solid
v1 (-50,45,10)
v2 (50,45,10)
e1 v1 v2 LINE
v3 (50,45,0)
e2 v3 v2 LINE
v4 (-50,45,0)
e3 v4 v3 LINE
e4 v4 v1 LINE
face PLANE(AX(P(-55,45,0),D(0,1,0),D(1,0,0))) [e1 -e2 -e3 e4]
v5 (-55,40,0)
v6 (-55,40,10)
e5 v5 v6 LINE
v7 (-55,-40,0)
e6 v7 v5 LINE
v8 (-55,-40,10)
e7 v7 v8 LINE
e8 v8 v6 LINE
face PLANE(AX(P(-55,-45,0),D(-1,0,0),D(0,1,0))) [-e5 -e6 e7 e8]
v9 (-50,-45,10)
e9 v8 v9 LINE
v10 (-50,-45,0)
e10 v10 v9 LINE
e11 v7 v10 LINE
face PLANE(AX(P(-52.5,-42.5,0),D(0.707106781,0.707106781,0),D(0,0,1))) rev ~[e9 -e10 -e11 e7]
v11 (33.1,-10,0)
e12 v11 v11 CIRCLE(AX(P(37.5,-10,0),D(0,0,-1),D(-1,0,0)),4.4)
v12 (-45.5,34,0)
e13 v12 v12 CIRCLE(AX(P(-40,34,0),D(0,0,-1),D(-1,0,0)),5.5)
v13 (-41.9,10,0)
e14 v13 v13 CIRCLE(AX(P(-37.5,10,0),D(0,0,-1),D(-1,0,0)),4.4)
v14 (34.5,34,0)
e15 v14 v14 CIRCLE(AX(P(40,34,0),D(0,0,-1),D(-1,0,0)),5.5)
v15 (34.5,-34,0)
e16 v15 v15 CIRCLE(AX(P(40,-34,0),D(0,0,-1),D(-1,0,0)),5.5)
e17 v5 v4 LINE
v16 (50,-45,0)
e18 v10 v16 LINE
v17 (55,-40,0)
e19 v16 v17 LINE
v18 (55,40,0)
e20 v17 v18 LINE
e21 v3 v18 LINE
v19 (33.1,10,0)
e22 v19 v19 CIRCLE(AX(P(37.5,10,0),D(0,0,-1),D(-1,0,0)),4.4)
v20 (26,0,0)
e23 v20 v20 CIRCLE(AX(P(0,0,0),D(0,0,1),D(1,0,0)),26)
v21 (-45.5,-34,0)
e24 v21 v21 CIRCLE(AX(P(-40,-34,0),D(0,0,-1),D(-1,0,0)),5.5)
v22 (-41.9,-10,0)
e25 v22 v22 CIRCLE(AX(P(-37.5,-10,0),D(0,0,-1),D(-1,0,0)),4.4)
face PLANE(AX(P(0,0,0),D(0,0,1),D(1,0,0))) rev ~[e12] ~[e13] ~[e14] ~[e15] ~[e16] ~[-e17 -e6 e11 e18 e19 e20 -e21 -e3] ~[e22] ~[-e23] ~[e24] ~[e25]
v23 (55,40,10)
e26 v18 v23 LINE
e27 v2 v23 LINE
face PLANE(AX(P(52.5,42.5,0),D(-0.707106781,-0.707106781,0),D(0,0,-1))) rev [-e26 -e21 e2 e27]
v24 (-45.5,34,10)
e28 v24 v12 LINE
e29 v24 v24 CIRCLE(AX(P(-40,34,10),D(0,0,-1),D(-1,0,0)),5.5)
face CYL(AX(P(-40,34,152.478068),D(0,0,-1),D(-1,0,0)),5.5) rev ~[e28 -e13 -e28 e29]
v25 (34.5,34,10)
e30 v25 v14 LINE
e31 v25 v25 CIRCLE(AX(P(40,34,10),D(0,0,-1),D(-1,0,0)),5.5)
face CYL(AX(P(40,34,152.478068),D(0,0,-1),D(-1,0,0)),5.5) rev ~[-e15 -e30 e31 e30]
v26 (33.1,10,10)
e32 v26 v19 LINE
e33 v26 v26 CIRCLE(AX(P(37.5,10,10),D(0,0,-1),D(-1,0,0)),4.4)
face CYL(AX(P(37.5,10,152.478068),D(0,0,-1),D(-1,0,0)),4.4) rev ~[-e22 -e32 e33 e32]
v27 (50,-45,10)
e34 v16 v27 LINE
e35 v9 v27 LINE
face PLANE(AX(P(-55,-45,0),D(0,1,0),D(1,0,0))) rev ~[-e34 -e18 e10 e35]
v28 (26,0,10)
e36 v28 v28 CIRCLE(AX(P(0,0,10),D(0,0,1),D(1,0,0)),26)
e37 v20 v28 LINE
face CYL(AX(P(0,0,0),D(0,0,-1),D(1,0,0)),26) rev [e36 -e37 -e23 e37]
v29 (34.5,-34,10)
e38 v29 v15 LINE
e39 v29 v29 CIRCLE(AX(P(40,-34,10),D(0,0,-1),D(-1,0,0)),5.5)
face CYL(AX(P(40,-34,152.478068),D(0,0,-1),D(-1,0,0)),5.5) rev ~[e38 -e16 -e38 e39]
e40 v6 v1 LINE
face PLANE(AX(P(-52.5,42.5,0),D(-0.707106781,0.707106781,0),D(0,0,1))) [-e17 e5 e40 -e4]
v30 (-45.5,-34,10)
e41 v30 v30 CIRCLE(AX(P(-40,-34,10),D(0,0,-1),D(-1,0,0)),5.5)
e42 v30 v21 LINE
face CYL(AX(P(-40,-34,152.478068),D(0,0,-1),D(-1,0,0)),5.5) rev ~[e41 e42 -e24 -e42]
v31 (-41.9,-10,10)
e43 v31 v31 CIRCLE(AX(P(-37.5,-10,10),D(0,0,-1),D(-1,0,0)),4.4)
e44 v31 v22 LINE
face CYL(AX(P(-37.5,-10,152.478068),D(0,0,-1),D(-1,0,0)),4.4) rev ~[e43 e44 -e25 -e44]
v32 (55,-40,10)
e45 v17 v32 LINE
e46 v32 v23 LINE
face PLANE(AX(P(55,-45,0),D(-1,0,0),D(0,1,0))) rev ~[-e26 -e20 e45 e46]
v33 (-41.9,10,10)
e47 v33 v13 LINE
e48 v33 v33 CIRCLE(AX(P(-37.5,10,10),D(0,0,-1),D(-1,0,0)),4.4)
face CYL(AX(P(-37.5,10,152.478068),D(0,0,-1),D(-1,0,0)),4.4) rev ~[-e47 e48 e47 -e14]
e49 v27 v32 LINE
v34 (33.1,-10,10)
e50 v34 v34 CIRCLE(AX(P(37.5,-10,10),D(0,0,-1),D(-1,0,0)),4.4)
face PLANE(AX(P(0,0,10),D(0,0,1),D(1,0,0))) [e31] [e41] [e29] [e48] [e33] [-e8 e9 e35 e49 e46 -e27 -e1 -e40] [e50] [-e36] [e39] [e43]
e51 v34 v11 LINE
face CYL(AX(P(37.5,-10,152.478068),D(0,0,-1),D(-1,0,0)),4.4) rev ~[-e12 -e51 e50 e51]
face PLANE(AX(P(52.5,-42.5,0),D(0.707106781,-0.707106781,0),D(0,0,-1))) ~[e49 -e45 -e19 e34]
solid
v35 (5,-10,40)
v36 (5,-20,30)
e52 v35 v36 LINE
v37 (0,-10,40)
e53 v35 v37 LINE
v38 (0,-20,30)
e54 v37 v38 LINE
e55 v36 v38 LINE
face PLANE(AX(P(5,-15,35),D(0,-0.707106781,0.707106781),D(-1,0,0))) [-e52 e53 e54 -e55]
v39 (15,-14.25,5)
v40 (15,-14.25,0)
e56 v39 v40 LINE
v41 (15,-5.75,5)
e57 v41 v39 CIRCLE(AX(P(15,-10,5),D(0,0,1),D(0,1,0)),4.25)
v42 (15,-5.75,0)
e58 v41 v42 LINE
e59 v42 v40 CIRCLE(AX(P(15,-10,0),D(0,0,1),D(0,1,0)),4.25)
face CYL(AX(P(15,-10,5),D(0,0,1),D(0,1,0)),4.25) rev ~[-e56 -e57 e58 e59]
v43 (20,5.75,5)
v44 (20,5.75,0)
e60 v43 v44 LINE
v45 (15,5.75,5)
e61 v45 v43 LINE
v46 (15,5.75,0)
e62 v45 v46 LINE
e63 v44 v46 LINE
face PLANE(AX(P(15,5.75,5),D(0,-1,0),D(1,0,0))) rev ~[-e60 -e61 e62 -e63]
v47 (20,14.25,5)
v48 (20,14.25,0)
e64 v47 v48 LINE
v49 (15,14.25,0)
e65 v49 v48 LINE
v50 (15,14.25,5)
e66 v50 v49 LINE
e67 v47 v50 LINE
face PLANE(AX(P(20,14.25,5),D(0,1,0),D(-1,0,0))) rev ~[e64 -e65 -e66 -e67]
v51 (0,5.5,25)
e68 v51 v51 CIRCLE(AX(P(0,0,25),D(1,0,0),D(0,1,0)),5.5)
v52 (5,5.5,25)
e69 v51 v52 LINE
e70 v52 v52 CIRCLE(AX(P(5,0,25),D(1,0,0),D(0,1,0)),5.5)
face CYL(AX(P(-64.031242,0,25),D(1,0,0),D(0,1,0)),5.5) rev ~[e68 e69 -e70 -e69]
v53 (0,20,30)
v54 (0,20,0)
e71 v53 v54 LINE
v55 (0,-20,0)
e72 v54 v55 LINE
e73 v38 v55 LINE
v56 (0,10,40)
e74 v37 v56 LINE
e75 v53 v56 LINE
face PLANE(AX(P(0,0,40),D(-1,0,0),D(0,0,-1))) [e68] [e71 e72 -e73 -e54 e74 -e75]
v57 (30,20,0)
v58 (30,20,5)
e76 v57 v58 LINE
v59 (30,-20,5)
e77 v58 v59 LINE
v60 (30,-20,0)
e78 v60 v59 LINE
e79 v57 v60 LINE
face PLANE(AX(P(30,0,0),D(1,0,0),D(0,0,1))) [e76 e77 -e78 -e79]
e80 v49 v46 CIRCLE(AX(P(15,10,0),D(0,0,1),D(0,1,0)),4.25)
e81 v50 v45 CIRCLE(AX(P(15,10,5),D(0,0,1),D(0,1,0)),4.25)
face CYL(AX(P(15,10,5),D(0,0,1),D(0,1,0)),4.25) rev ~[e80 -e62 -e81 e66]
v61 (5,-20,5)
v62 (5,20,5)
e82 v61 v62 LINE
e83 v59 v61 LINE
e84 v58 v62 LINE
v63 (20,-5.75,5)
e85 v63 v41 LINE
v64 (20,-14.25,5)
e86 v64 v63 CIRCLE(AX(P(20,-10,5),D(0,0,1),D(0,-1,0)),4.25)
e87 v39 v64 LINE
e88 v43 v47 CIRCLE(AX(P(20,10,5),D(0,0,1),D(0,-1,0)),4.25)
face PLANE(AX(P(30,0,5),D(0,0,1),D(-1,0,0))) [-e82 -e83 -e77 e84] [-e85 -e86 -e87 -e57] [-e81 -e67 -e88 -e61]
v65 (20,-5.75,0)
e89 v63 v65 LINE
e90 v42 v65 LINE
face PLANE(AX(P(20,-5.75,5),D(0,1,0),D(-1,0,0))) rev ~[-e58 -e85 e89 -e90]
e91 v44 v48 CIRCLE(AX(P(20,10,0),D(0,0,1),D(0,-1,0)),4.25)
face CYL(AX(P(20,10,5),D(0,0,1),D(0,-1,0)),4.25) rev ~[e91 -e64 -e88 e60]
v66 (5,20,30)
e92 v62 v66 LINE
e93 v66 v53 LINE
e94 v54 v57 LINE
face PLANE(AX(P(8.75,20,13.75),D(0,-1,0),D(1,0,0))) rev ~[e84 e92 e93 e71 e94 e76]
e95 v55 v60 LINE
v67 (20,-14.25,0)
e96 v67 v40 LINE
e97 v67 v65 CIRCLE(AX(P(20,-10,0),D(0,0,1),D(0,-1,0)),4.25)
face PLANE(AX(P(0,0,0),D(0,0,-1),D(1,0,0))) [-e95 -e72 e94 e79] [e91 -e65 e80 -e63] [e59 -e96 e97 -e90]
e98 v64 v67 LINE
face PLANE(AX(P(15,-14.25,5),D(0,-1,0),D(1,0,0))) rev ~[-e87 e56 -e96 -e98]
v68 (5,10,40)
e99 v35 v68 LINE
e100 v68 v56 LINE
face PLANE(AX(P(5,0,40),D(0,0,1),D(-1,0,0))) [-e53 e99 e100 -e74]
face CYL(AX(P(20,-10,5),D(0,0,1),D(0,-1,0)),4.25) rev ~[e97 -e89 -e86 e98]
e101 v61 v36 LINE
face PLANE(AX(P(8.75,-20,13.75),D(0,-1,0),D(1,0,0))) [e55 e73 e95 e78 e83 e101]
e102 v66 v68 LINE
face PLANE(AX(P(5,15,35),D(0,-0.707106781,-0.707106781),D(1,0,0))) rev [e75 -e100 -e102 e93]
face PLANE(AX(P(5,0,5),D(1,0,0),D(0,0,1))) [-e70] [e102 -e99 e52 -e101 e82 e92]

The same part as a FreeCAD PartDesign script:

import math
import FreeCAD as App
import Part
import Sketcher

V = App.Vector


def edges_at(feature, points):
    """Names of the edges that pass closest to the given points."""
    edges = feature.Shape.Edges
    near = lambda p: min(range(len(edges)), key=lambda i: edges[i].distToShape(Part.Vertex(*p))[0])
    return sorted({f"Edge{near(p) + 1}" for p in points})

doc = App.newDocument("Part")
body = doc.addObject("PartDesign::Body", "Body")

# Sketch on XY plane
sketch1 = body.newObject("Sketcher::SketchObject", "Sketch")
sketch1.AttachmentSupport = (doc.getObject("XY_Plane"), [""])
sketch1.MapMode = "FlatFace"
sketch1.addGeometry([
    Part.LineSegment(V(-55, 45, 0), V(-55, -45, 0)),  # 0
    Part.LineSegment(V(-55, -45, 0), V(55, -45, 0)),  # 1
    Part.LineSegment(V(55, -45, 0), V(55, 45, 0)),  # 2
    Part.LineSegment(V(55, 45, 0), V(-55, 45, 0)),  # 3
    Part.Circle(V(0, 0, 0), V(0, 0, 1), 26),  # 4
], False)
sketch1.addConstraint([
    Sketcher.Constraint("Coincident", 0, 2, 1, 1),
    Sketcher.Constraint("Coincident", 1, 2, 2, 1),
    Sketcher.Constraint("Coincident", 2, 2, 3, 1),
    Sketcher.Constraint("Coincident", 3, 2, 0, 1),
    Sketcher.Constraint("Vertical", 0),
    Sketcher.Constraint("Horizontal", 1),
    Sketcher.Constraint("Vertical", 2),
    Sketcher.Constraint("Horizontal", 3),
    Sketcher.Constraint("Coincident", 4, 3, -1, 1),
    Sketcher.Constraint("Symmetric", 0, 2, 2, 2, -1, 1),
    Sketcher.Constraint("Diameter", 4, 52.0),
    Sketcher.Constraint("DistanceX", 1, 1, 1, 2, 110.0),
    Sketcher.Constraint("DistanceY", 0, 2, 0, 1, 90.0),
])
pad1 = body.newObject("PartDesign::Pad", "Pad")
pad1.Profile = sketch1
pad1.Length = 10

# Sketch on XY plane
sketch2 = body.newObject("Sketcher::SketchObject", "Sketch001")
sketch2.AttachmentSupport = (doc.getObject("XY_Plane"), [""])
sketch2.MapMode = "FlatFace"
sketch2.AttachmentOffset = App.Placement(V(0, 0, 10), App.Rotation())
sketch2.addGeometry([
    Part.Circle(V(-40, 34, 0), V(0, 0, 1), 6),
    Part.Circle(V(-40, -34, 0), V(0, 0, 1), 6),
    Part.Circle(V(40, -34, 0), V(0, 0, 1), 6),
    Part.Circle(V(40, 34, 0), V(0, 0, 1), 6),
], False)
sketch2.addConstraint([
    Sketcher.Constraint("Equal", 0, 1),
    Sketcher.Constraint("Equal", 1, 2),
    Sketcher.Constraint("Equal", 2, 3),
    Sketcher.Constraint("Symmetric", 0, 3, 2, 3, -1, 1),
    Sketcher.Constraint("Symmetric", 1, 3, 3, 3, -1, 1),
    Sketcher.Constraint("Symmetric", 1, 3, 2, 3, -2),
    Sketcher.Constraint("Diameter", 0, 11.0),
    Sketcher.Constraint("DistanceX", 0, 3, -1, 1, 40.0),
    Sketcher.Constraint("DistanceY", -1, 1, 0, 3, 34.0),
])
doc.recompute()
hole = body.newObject("PartDesign::Hole", "Hole")
hole.Profile = sketch2
hole.ThreadType = "None"
hole.Diameter = 11
hole.DepthType = "ThroughAll"

# Sketch on XY plane
sketch3 = body.newObject("Sketcher::SketchObject", "Sketch002")
sketch3.AttachmentSupport = (doc.getObject("XY_Plane"), [""])
sketch3.MapMode = "FlatFace"
sketch3.AttachmentOffset = App.Placement(V(0, 0, 10), App.Rotation())
sketch3.addGeometry([
    Part.Circle(V(-37.5, 10, 0), V(0, 0, 1), 4.4),
    Part.Circle(V(-37.5, -10, 0), V(0, 0, 1), 4.4),
    Part.Circle(V(37.5, -10, 0), V(0, 0, 1), 4.4),
    Part.Circle(V(37.5, 10, 0), V(0, 0, 1), 4.4),
], False)
sketch3.addConstraint([
    Sketcher.Constraint("Equal", 0, 1),
    Sketcher.Constraint("Equal", 1, 2),
    Sketcher.Constraint("Equal", 2, 3),
    Sketcher.Constraint("Symmetric", 0, 3, 2, 3, -1, 1),
    Sketcher.Constraint("Symmetric", 1, 3, 3, 3, -1, 1),
    Sketcher.Constraint("Symmetric", 1, 3, 2, 3, -2),
    Sketcher.Constraint("Diameter", 0, 8.8),
    Sketcher.Constraint("DistanceY", -1, 1, 0, 3, 10.0),
    Sketcher.Constraint("DistanceX", 1, 3, 2, 3, 75.0),
])
doc.recompute()
hole2 = body.newObject("PartDesign::Hole", "Hole001")
hole2.Profile = sketch3
hole2.ThreadType = "None"
hole2.Diameter = 8.8
hole2.DepthType = "ThroughAll"
doc.recompute()

chamfer = body.newObject("PartDesign::Chamfer", "Chamfer")
chamfer.Base = (hole2, edges_at(hole2, [
    (-55, 45, 5),
    (55, 45, 5),
    (55, -45, 5),
    (-55, -45, 5),
]))
chamfer.Size = 5
body2 = doc.addObject("PartDesign::Body", "Body001")

# Sketch on XZ plane
sketch4 = body2.newObject("Sketcher::SketchObject", "Sketch003")
sketch4.AttachmentSupport = (doc.getObject("XZ_Plane001"), [""])
sketch4.MapMode = "FlatFace"
sketch4.addGeometry([
    Part.LineSegment(V(0, 40, 0), V(0, 0, 0)),  # 0
    Part.LineSegment(V(0, 0, 0), V(30, 0, 0)),  # 1
    Part.LineSegment(V(30, 0, 0), V(30, 5, 0)),  # 2
    Part.LineSegment(V(30, 5, 0), V(5, 5, 0)),  # 3
    Part.LineSegment(V(5, 5, 0), V(5, 40, 0)),  # 4
    Part.LineSegment(V(5, 40, 0), V(0, 40, 0)),  # 5
], False)
sketch4.addConstraint([
    Sketcher.Constraint("Coincident", 0, 2, 1, 1),
    Sketcher.Constraint("Coincident", 1, 2, 2, 1),
    Sketcher.Constraint("Coincident", 2, 2, 3, 1),
    Sketcher.Constraint("Coincident", 3, 2, 4, 1),
    Sketcher.Constraint("Coincident", 4, 2, 5, 1),
    Sketcher.Constraint("Coincident", 5, 2, 0, 1),
    Sketcher.Constraint("Vertical", 0),
    Sketcher.Constraint("Horizontal", 1),
    Sketcher.Constraint("Vertical", 2),
    Sketcher.Constraint("Horizontal", 3),
    Sketcher.Constraint("Vertical", 4),
    Sketcher.Constraint("Horizontal", 5),
    Sketcher.Constraint("Coincident", 0, 2, -1, 1),
    Sketcher.Constraint("Equal", 5, 2),
    Sketcher.Constraint("DistanceX", 1, 1, 1, 2, 30.0),
    Sketcher.Constraint("DistanceX", 3, 2, 3, 1, 25.0),
    Sketcher.Constraint("DistanceY", 0, 2, 0, 1, 40.0),
])
pad2 = body2.newObject("PartDesign::Pad", "Pad001")
pad2.Profile = sketch4
pad2.Length = 40
pad2.Midplane = True

# Sketch on YZ plane
sketch5 = body2.newObject("Sketcher::SketchObject", "Sketch004")
sketch5.AttachmentSupport = (doc.getObject("YZ_Plane001"), [""])
sketch5.MapMode = "FlatFace"
sketch5.addGeometry(Part.Circle(V(0, 25, 0), V(0, 0, 1), 6), False)
sketch5.addConstraint([
    Sketcher.Constraint("PointOnObject", 0, 3, -2),
    Sketcher.Constraint("Diameter", 0, 11.0),
    Sketcher.Constraint("DistanceY", -1, 1, 0, 3, 25.0),
])
doc.recompute()
hole3 = body2.newObject("PartDesign::Hole", "Hole002")
hole3.Profile = sketch5
hole3.ThreadType = "None"
hole3.Diameter = 11
hole3.DepthType = "ThroughAll"
hole3.Reversed = True
doc.recompute()

chamfer2 = body2.newObject("PartDesign::Chamfer", "Chamfer001")
chamfer2.Base = (hole3, edges_at(hole3, [(2.5, -20, 40), (2.5, 20, 40)]))
chamfer2.Size = 10

# Sketch on XY plane
sketch6 = body2.newObject("Sketcher::SketchObject", "Sketch005")
sketch6.AttachmentSupport = (doc.getObject("XY_Plane001"), [""])
sketch6.MapMode = "FlatFace"
sketch6.AttachmentOffset = App.Placement(V(0, 0, 5), App.Rotation())
sketch6.addGeometry([
    Part.LineSegment(V(15, 5.8, 0), V(20, 5.8, 0)),  # 0
    Part.ArcOfCircle(Part.Circle(V(20, 10, 0), V(0, 0, 1), 4.2), math.radians(-90), math.radians(90)),  # 1
    Part.LineSegment(V(20, 14.2, 0), V(15, 14.2, 0)),  # 2
    Part.ArcOfCircle(Part.Circle(V(15, 10, 0), V(0, 0, 1), 4.2), math.radians(90), math.radians(270)),  # 3
    Part.LineSegment(V(20, -5.8, 0), V(15, -5.8, 0)),  # 4
    Part.ArcOfCircle(Part.Circle(V(15, -10, 0), V(0, 0, 1), 4.2), math.radians(90), math.radians(270)),  # 5
    Part.LineSegment(V(15, -14.2, 0), V(20, -14.2, 0)),  # 6
    Part.ArcOfCircle(Part.Circle(V(20, -10, 0), V(0, 0, 1), 4.2), math.radians(-90), math.radians(90)),  # 7
], False)
sketch6.addConstraint([
    Sketcher.Constraint("Tangent", 0, 2, 1, 1),
    Sketcher.Constraint("Tangent", 1, 2, 2, 1),
    Sketcher.Constraint("Tangent", 2, 2, 3, 1),
    Sketcher.Constraint("Tangent", 3, 2, 0, 1),
    Sketcher.Constraint("Tangent", 4, 2, 5, 1),
    Sketcher.Constraint("Tangent", 5, 2, 6, 1),
    Sketcher.Constraint("Tangent", 6, 2, 7, 1),
    Sketcher.Constraint("Tangent", 7, 2, 4, 1),
    Sketcher.Constraint("Horizontal", 0),
    Sketcher.Constraint("Horizontal", 2),
    Sketcher.Constraint("Horizontal", 4),
    Sketcher.Constraint("Horizontal", 6),
    Sketcher.Constraint("Equal", 3, 5),
    Sketcher.Constraint("Symmetric", 3, 3, 5, 3, -1),
    Sketcher.Constraint("Vertical", 1, 3, 7, 3),
    Sketcher.Constraint("DistanceX", 0, 1, 0, 2, 5.0),
    Sketcher.Constraint("Radius", 1, 4.25),
    Sketcher.Constraint("DistanceX", -1, 1, 1, 3, 20.0),
    Sketcher.Constraint("DistanceY", -1, 1, 1, 3, 10.0),
])
pocket1 = body2.newObject("PartDesign::Pocket", "Pocket")
pocket1.Profile = sketch6
pocket1.Length = 25

doc.recompute()
